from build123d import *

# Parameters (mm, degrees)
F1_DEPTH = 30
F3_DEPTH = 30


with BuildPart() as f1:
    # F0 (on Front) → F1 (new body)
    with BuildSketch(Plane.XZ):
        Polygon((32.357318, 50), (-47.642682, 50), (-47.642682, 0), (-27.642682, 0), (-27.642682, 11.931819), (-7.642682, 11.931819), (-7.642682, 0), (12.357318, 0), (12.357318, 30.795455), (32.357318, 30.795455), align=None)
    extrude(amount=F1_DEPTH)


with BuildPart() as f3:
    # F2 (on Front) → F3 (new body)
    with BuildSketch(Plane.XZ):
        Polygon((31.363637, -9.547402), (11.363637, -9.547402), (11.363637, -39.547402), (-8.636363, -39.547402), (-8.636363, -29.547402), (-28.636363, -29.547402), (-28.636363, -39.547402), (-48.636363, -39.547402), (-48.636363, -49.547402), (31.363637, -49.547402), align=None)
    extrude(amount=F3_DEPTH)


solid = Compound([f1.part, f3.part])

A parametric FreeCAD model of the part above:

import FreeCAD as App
import Part
import Sketcher
from FreeCAD import Vector

doc = App.newDocument("Part")
params = doc.addObject("Spreadsheet::Sheet", "Params")
for row, (alias, value) in enumerate([
    ("sketch1_width", "80 mm"),
    ("sketch1_height", "50 mm"),
    ("pad1_length", "30 mm"),
    ("sketch2_width", "20 mm"),
    ("sketch2_height", "30 mm"),
    ("sketch2_height2", "10 mm"),
    ("pad2_length", "30 mm"),
], start=1):
    params.set(f"A{row}", alias)
    params.set(f"B{row}", "=" + value)
    params.setAlias(f"B{row}", alias)

body = doc.addObject("PartDesign::Body", "Body")

# Sketch on XZ plane
sketch1 = doc.addObject("Sketcher::SketchObject", "Sketch")
body.addObject(sketch1)
sketch1.AttachmentSupport = (doc.XZ_Plane, [""])
sketch1.MapMode = "FlatFace"
sketch1.addGeometry(Part.LineSegment(Vector(32.357318, 50, 0), Vector(-47.642682, 50, 0)), False)
sketch1.addGeometry(Part.LineSegment(Vector(-47.642682, 50, 0), Vector(-47.642682, 0, 0)), False)
sketch1.addGeometry(Part.LineSegment(Vector(-47.642682, 0, 0), Vector(-27.642682, 0, 0)), False)
sketch1.addGeometry(Part.LineSegment(Vector(-27.642682, 0, 0), Vector(-27.642682, 11.931819, 0)), False)
sketch1.addGeometry(Part.LineSegment(Vector(-27.642682, 11.931819, 0), Vector(-7.642682, 11.931819, 0)), False)
sketch1.addGeometry(Part.LineSegment(Vector(-7.642682, 11.931819, 0), Vector(-7.642682, 0, 0)), False)
sketch1.addGeometry(Part.LineSegment(Vector(-7.642682, 0, 0), Vector(12.357318, 0, 0)), False)
sketch1.addGeometry(Part.LineSegment(Vector(12.357318, 0, 0), Vector(12.357318, 30.795455, 0)), False)
sketch1.addGeometry(Part.LineSegment(Vector(12.357318, 30.795455, 0), Vector(32.357318, 30.795455, 0)), False)
sketch1.addGeometry(Part.LineSegment(Vector(32.357318, 30.795455, 0), Vector(32.357318, 50, 0)), False)
sketch1.addConstraint(Sketcher.Constraint("Coincident", 0, 2, 1, 1))
sketch1.addConstraint(Sketcher.Constraint("Coincident", 1, 2, 2, 1))
sketch1.addConstraint(Sketcher.Constraint("Coincident", 2, 2, 3, 1))
sketch1.addConstraint(Sketcher.Constraint("Coincident", 3, 2, 4, 1))
sketch1.addConstraint(Sketcher.Constraint("Coincident", 4, 2, 5, 1))
sketch1.addConstraint(Sketcher.Constraint("Coincident", 5, 2, 6, 1))
sketch1.addConstraint(Sketcher.Constraint("Coincident", 6, 2, 7, 1))
sketch1.addConstraint(Sketcher.Constraint("Coincident", 7, 2, 8, 1))
sketch1.addConstraint(Sketcher.Constraint("Coincident", 8, 2, 9, 1))
sketch1.addConstraint(Sketcher.Constraint("Coincident", 9, 2, 0, 1))
sketch1.addConstraint(Sketcher.Constraint("Horizontal", 0))
sketch1.addConstraint(Sketcher.Constraint("Vertical", 1))
sketch1.addConstraint(Sketcher.Constraint("Horizontal", 2))
sketch1.addConstraint(Sketcher.Constraint("Vertical", 3))
sketch1.addConstraint(Sketcher.Constraint("Horizontal", 4))
sketch1.addConstraint(Sketcher.Constraint("Vertical", 5))
sketch1.addConstraint(Sketcher.Constraint("Horizontal", 6))
sketch1.addConstraint(Sketcher.Constraint("Vertical", 7))
sketch1.addConstraint(Sketcher.Constraint("Horizontal", 8))
sketch1.addConstraint(Sketcher.Constraint("Vertical", 9))
sketch1.addConstraint(Sketcher.Constraint("PointOnObject", 1, 2, -1))
sketch1.addConstraint(Sketcher.Constraint("PointOnObject", 5, 2, -1))
sketch1.addConstraint(Sketcher.Constraint("Equal", 2, 4))
sketch1.addConstraint(Sketcher.Constraint("Equal", 4, 6))
sketch1.addConstraint(Sketcher.Constraint("Equal", 6, 8))
sketch1.addConstraint(Sketcher.Constraint("DistanceX", 0, 2, 0, 1, 80.0))
sketch1.addConstraint(Sketcher.Constraint("DistanceY", 1, 2, 1, 1, 50.0))
sketch1.addConstraint(Sketcher.Constraint("DistanceY", 3, 1, 3, 2, 11.931819))
sketch1.addConstraint(Sketcher.Constraint("DistanceY", 7, 1, 7, 2, 30.795455))
sketch1.addConstraint(Sketcher.Constraint("DistanceX", 4, 2, -1, 1, 7.642682))
sketch1.setExpression("Constraints[25]", "Params.sketch1_width")
sketch1.setExpression("Constraints[26]", "Params.sketch1_height")
pad1 = doc.addObject("PartDesign::Pad", "Pad")
body.addObject(pad1)
pad1.Profile = sketch1
pad1.setExpression("Length", "Params.pad1_length")
body2 = doc.addObject("PartDesign::Body", "Body001")

# Sketch on XZ plane
sketch2 = doc.addObject("Sketcher::SketchObject", "Sketch001")
body2.addObject(sketch2)
sketch2.AttachmentSupport = (doc.getObject("XZ_Plane001"), [""])
sketch2.MapMode = "FlatFace"
sketch2.addGeometry(Part.LineSegment(Vector(31.363637, -9.547402, 0), Vector(11.363637, -9.547402, 0)), False)
sketch2.addGeometry(Part.LineSegment(Vector(11.363637, -9.547402, 0), Vector(11.363637, -39.547402, 0)), False)
sketch2.addGeometry(Part.LineSegment(Vector(11.363637, -39.547402, 0), Vector(-8.636363, -39.547402, 0)), False)
sketch2.addGeometry(Part.LineSegment(Vector(-8.636363, -39.547402, 0), Vector(-8.636363, -29.547402, 0)), False)
sketch2.addGeometry(Part.LineSegment(Vector(-8.636363, -29.547402, 0), Vector(-28.636363, -29.547402, 0)), False)
sketch2.addGeometry(Part.LineSegment(Vector(-28.636363, -29.547402, 0), Vector(-28.636363, -39.547402, 0)), False)
sketch2.addGeometry(Part.LineSegment(Vector(-28.636363, -39.547402, 0), Vector(-48.636363, -39.547402, 0)), False)
sketch2.addGeometry(Part.LineSegment(Vector(-48.636363, -39.547402, 0), Vector(-48.636363, -49.547402, 0)), False)
sketch2.addGeometry(Part.LineSegment(Vector(-48.636363, -49.547402, 0), Vector(31.363637, -49.547402, 0)), False)
sketch2.addGeometry(Part.LineSegment(Vector(31.363637, -49.547402, 0), Vector(31.363637, -9.547402, 0)), False)
sketch2.addConstraint(Sketcher.Constraint("Coincident", 0, 2, 1, 1))
sketch2.addConstraint(Sketcher.Constraint("Coincident", 1, 2, 2, 1))
sketch2.addConstraint(Sketcher.Constraint("Coincident", 2, 2, 3, 1))
sketch2.addConstraint(Sketcher.Constraint("Coincident", 3, 2, 4, 1))
sketch2.addConstraint(Sketcher.Constraint("Coincident", 4, 2, 5, 1))
sketch2.addConstraint(Sketcher.Constraint("Coincident", 5, 2, 6, 1))
sketch2.addConstraint(Sketcher.Constraint("Coincident", 6, 2, 7, 1))
sketch2.addConstraint(Sketcher.Constraint("Coincident", 7, 2, 8, 1))
sketch2.addConstraint(Sketcher.Constraint("Coincident", 8, 2, 9, 1))
sketch2.addConstraint(Sketcher.Constraint("Coincident", 9, 2, 0, 1))
sketch2.addConstraint(Sketcher.Constraint("Horizontal", 0))
sketch2.addConstraint(Sketcher.Constraint("Vertical", 1))
sketch2.addConstraint(Sketcher.Constraint("Horizontal", 2))
sketch2.addConstraint(Sketcher.Constraint("Vertical", 3))
sketch2.addConstraint(Sketcher.Constraint("Horizontal", 4))
sketch2.addConstraint(Sketcher.Constraint("Vertical", 5))
sketch2.addConstraint(Sketcher.Constraint("Horizontal", 6))
sketch2.addConstraint(Sketcher.Constraint("Vertical", 7))
sketch2.addConstraint(Sketcher.Constraint("Horizontal", 8))
sketch2.addConstraint(Sketcher.Constraint("Vertical", 9))
sketch2.addConstraint(Sketcher.Constraint("Horizontal", 2, 2, 5, 2))
sketch2.addConstraint(Sketcher.Constraint("Equal", 0, 2))
sketch2.addConstraint(Sketcher.Constraint("Equal", 2, 4))
sketch2.addConstraint(Sketcher.Constraint("Equal", 4, 6))
sketch2.addConstraint(Sketcher.Constraint("Equal", 5, 7))
sketch2.addConstraint(Sketcher.Constraint("DistanceX", 0, 2, 0, 1, 20.0))
sketch2.addConstraint(Sketcher.Constraint("DistanceY", 1, 2, 1, 1, 30.0))
sketch2.addConstraint(Sketcher.Constraint("DistanceY", 3, 1, 3, 2, 10.0))
sketch2.addConstraint(Sketcher.Constraint("DistanceY", 1, 2, -1, 1, 39.547402))
sketch2.addConstraint(Sketcher.Constraint("DistanceX", -1, 1, 0, 2, 11.363637))
sketch2.setExpression("Constraints[25]", "Params.sketch2_width")
sketch2.setExpression("Constraints[26]", "Params.sketch2_height")
sketch2.setExpression("Constraints[27]", "Params.sketch2_height2")
pad2 = doc.addObject("PartDesign::Pad", "Pad001")
body2.addObject(pad2)
pad2.Profile = sketch2
pad2.setExpression("Length", "Params.pad2_length")

doc.recompute()
